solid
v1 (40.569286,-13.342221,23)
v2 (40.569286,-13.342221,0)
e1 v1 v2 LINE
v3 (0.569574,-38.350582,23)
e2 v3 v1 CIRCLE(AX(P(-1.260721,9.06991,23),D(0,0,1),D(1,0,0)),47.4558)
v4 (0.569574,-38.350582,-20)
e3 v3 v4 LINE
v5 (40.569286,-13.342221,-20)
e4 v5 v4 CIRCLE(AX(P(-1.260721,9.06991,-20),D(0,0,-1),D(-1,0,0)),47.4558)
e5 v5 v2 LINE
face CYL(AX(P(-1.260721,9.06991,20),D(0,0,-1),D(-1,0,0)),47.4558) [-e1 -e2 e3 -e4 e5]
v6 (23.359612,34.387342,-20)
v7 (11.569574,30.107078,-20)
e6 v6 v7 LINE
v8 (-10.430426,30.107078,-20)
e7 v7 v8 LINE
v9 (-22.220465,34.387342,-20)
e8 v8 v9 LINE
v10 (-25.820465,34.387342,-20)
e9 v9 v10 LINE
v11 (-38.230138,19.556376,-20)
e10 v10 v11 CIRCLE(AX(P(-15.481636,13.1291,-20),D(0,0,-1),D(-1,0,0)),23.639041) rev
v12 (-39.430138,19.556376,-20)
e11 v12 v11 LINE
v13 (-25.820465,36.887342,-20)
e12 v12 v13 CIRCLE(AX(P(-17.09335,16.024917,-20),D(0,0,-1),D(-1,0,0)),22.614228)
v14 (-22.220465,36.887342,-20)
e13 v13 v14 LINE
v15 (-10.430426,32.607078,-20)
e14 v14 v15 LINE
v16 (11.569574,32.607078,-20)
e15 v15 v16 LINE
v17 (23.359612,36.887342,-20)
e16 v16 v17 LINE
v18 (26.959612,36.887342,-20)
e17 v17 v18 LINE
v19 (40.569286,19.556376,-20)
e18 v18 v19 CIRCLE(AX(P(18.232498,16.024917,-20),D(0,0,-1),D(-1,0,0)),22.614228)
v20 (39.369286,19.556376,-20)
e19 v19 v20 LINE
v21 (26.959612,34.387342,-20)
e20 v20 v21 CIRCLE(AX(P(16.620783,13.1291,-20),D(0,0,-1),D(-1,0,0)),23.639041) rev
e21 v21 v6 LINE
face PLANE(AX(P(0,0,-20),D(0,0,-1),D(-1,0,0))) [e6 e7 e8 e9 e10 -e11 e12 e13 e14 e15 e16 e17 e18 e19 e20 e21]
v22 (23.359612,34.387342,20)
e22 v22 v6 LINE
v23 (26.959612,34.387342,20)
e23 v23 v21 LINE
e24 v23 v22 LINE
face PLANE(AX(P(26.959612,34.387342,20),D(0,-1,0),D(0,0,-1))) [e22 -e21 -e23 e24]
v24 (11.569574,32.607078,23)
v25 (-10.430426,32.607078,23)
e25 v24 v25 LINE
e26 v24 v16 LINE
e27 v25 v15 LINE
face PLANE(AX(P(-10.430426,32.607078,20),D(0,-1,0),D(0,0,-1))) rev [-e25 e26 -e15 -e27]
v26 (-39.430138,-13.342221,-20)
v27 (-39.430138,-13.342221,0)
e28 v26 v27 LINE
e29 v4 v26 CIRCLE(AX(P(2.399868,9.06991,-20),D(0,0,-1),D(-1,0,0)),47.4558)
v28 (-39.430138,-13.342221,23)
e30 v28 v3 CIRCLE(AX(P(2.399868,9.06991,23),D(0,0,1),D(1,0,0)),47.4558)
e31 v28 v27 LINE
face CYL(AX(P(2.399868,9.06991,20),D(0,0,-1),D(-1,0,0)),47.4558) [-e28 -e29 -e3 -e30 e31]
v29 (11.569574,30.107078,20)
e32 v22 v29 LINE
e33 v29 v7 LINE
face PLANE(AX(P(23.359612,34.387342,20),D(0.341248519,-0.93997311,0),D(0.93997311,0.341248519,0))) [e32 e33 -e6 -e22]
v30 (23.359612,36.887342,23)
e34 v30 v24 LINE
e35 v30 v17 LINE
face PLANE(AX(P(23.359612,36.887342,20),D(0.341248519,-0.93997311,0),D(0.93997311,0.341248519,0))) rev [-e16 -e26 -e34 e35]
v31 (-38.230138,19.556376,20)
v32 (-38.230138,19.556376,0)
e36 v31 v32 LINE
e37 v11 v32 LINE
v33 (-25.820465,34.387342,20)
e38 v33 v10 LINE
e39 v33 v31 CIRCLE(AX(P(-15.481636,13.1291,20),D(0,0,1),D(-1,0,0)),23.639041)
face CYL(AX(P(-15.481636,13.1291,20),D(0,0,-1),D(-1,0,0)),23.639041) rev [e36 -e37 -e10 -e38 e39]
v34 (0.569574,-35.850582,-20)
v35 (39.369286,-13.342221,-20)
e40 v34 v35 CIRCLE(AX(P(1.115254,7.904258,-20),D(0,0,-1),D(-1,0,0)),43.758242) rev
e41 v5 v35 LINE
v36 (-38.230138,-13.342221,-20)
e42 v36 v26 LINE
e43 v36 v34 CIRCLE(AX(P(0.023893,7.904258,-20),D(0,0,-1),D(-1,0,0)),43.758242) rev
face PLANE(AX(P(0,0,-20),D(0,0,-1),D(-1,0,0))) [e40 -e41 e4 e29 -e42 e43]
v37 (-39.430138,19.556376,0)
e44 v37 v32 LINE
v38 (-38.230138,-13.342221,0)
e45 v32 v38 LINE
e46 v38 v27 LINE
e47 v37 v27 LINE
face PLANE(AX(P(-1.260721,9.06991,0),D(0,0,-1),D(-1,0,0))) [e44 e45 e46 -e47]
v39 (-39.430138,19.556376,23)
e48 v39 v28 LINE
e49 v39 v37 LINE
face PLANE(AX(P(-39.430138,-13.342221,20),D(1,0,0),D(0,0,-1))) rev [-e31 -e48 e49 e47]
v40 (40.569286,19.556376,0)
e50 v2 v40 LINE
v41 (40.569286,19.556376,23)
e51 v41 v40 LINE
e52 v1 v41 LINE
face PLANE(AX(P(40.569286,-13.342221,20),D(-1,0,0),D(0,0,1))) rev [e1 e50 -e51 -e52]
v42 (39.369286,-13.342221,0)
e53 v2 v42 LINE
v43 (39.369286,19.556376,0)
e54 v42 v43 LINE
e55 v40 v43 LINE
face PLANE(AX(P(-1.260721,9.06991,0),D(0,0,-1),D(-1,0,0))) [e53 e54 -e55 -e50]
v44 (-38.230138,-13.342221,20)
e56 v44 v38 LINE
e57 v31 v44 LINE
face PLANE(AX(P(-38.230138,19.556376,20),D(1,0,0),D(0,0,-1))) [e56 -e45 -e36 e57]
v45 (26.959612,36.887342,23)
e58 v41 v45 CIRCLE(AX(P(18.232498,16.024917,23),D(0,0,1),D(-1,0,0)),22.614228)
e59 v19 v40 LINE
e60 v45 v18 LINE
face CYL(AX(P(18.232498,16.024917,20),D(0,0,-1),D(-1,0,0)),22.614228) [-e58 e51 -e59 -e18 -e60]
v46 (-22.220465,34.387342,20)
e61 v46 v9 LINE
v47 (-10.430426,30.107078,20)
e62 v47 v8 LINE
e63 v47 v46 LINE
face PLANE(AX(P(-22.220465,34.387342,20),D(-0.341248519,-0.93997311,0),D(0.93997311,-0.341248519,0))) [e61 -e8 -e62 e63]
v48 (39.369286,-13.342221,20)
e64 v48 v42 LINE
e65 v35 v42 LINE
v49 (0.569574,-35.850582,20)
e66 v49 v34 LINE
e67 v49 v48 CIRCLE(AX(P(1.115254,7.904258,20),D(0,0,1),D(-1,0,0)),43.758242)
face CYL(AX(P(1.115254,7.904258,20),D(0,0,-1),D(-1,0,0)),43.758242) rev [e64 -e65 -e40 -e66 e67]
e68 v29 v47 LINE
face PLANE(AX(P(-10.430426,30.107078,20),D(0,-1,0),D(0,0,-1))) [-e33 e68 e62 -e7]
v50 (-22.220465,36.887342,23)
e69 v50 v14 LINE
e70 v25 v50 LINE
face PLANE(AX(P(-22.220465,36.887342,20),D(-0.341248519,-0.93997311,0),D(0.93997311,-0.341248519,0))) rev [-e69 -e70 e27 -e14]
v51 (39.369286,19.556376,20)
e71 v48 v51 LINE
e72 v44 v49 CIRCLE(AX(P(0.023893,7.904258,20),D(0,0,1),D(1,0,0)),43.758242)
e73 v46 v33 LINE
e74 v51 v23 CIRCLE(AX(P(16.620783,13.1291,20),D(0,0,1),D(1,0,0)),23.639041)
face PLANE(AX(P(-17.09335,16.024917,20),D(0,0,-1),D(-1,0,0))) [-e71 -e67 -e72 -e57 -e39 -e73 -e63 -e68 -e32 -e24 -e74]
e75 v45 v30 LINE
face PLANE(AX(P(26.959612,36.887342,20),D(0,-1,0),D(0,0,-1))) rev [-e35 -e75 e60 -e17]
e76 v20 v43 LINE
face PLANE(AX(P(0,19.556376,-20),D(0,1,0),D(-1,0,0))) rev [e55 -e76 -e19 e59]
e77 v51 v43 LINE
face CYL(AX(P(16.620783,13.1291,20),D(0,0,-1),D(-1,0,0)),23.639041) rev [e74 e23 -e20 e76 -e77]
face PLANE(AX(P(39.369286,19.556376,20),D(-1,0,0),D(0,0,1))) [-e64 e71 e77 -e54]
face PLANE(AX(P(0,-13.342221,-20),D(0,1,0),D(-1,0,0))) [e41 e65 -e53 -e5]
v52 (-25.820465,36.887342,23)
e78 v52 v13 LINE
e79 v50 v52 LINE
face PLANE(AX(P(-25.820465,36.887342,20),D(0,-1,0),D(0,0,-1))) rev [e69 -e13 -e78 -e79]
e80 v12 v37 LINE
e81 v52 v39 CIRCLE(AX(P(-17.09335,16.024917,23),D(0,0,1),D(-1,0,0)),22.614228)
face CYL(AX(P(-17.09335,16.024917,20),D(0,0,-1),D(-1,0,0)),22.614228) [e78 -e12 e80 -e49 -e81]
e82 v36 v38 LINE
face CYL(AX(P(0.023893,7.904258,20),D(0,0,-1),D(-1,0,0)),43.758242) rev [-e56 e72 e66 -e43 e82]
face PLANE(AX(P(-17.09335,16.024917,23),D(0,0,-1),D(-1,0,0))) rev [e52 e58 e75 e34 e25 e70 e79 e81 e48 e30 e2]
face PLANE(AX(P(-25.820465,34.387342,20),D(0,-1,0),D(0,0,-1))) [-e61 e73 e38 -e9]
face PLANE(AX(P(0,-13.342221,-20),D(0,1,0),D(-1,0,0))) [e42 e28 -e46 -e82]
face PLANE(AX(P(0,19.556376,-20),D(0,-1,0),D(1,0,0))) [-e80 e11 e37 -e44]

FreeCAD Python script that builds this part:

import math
import FreeCAD as App
import Part
import Sketcher

V = App.Vector
Q = App.Units.Quantity

doc = App.newDocument("Part")
params = doc.addObject("Spreadsheet::Sheet", "Params")
for row, (alias, value) in enumerate([
    ("sketch1_width", "22 mm"),
    ("sketch1_width2", "3.6 mm"),
    ("pad1_length", "20 mm"),
    ("sketch2_width", "22 mm"),
    ("sketch2_width2", "1.2 mm"),
    ("sketch2_width3", "3.6 mm"),
    ("pad2_length", "20 mm"),
    ("sketch3_width", "22 mm"),
    ("sketch3_width2", "3.6 mm"),
    ("pad3_length", "3 mm"),
], start=1):
    params.set(f"A{row}", alias)
    params.set(f"B{row}", "=" + value)
    params.setAlias(f"B{row}", alias)

body = doc.addObject("PartDesign::Body", "Body")

sketch1 = body.newObject("Sketcher::SketchObject", "Sketch")
sketch1.AttachmentSupport = (doc.getObject("XY_Plane"), [""])
sketch1.MapMode = "FlatFace"
sketch1.addGeometry([
    Part.LineSegment(V(-39.430138, 19.556376, 0), V(-39.430138, -13.342221, 0)),
    Part.ArcOfCircle(Part.Circle(V(2.399868, 9.06991, 0), V(0, 0, 1), 47.4558), math.radians(-151.818006), math.radians(-92.210355)),
    Part.ArcOfCircle(Part.Circle(V(-1.260721, 9.06991, 0), V(0, 0, 1), 47.4558), math.radians(-87.789645), math.radians(-28.181994)),
    Part.LineSegment(V(40.569286, -13.342221, 0), V(40.569286, 19.556376, 0)),
    Part.ArcOfCircle(Part.Circle(V(18.232498, 16.024917, 0), V(0, 0, 1), 22.614228), math.radians(8.984133), math.radians(67.299595)),
    Part.LineSegment(V(26.959612, 36.887342, 0), V(23.359612, 36.887342, 0)),
    Part.LineSegment(V(23.359612, 36.887342, 0), V(11.569574, 32.607078, 0)),
    Part.LineSegment(V(11.569574, 32.607078, 0), V(-10.430426, 32.607078, 0)),
    Part.LineSegment(V(-10.430426, 32.607078, 0), V(-22.220465, 36.887342, 0)),
    Part.LineSegment(V(-22.220465, 36.887342, 0), V(-25.820465, 36.887342, 0)),
    Part.ArcOfCircle(Part.Circle(V(-17.09335, 16.024917, 0), V(0, 0, 1), 22.614228), math.radians(112.700405), math.radians(171.015867)),
    Part.ArcOfCircle(Part.Circle(V(-15.481636, 13.1291, 0), V(0, 0, 1), 23.639041), math.radians(115.935717), math.radians(164.223091)),
    Part.LineSegment(V(-25.820465, 34.387342, 0), V(-22.220465, 34.387342, 0)),
    Part.LineSegment(V(-22.220465, 34.387342, 0), V(-10.430426, 30.107078, 0)),
    Part.LineSegment(V(-10.430426, 30.107078, 0), V(11.569574, 30.107078, 0)),
    Part.LineSegment(V(11.569574, 30.107078, 0), V(23.359612, 34.387342, 0)),
    Part.LineSegment(V(23.359612, 34.387342, 0), V(26.959612, 34.387342, 0)),
    Part.ArcOfCircle(Part.Circle(V(16.620783, 13.1291, 0), V(0, 0, 1), 23.639041), math.radians(15.776909), math.radians(64.064283)),
    Part.LineSegment(V(39.369286, 19.556376, 0), V(39.369286, -13.342221, 0)),
    Part.ArcOfCircle(Part.Circle(V(1.115254, 7.904258, 0), V(0, 0, 1), 43.758242), math.radians(-90.714517), math.radians(-29.04801)),
    Part.ArcOfCircle(Part.Circle(V(0.023893, 7.904258, 0), V(0, 0, 1), 43.758242), math.radians(-150.95199), math.radians(-89.285483)),
    Part.LineSegment(V(-38.230138, -13.342221, 0), V(-38.230138, 19.556376, 0)),
], False)
sketch1.addConstraint([
    Sketcher.Constraint("Coincident", 0, 2, 1, 1),
    Sketcher.Constraint("Coincident", 1, 2, 2, 1),
    Sketcher.Constraint("Coincident", 2, 2, 3, 1),
    Sketcher.Constraint("Coincident", 3, 2, 4, 1),
    Sketcher.Constraint("Coincident", 4, 2, 5, 1),
    Sketcher.Constraint("Coincident", 5, 2, 6, 1),
    Sketcher.Constraint("Coincident", 6, 2, 7, 1),
    Sketcher.Constraint("Coincident", 7, 2, 8, 1),
    Sketcher.Constraint("Coincident", 8, 2, 9, 1),
    Sketcher.Constraint("Coincident", 9, 2, 10, 1),
    Sketcher.Constraint("Coincident", 10, 2, 0, 1),
    Sketcher.Constraint("Coincident", 11, 1, 12, 1),
    Sketcher.Constraint("Coincident", 12, 2, 13, 1),
    Sketcher.Constraint("Coincident", 13, 2, 14, 1),
    Sketcher.Constraint("Coincident", 14, 2, 15, 1),
    Sketcher.Constraint("Coincident", 15, 2, 16, 1),
    Sketcher.Constraint("Coincident", 16, 2, 17, 2),
    Sketcher.Constraint("Coincident", 17, 1, 18, 1),
    Sketcher.Constraint("Coincident", 18, 2, 19, 2),
    Sketcher.Constraint("Coincident", 19, 1, 20, 2),
    Sketcher.Constraint("Coincident", 20, 1, 21, 1),
    Sketcher.Constraint("Coincident", 21, 2, 11, 2),
    Sketcher.Constraint("Vertical", 0),
    Sketcher.Constraint("Vertical", 3),
    Sketcher.Constraint("Horizontal", 5),
    Sketcher.Constraint("Horizontal", 7),
    Sketcher.Constraint("Horizontal", 9),
    Sketcher.Constraint("Horizontal", 12),
    Sketcher.Constraint("Horizontal", 14),
    Sketcher.Constraint("Horizontal", 16),
    Sketcher.Constraint("Vertical", 18),
    Sketcher.Constraint("Vertical", 21),
    Sketcher.Constraint("Equal", 1, 2),
    Sketcher.Constraint("Equal", 4, 10),
    Sketcher.Constraint("Equal", 11, 17),
    Sketcher.Constraint("Equal", 19, 20),
    Sketcher.Constraint("Parallel", 8, 13),
    Sketcher.Constraint("Parallel", 6, 15),
    Sketcher.Constraint("Horizontal", 1, 3, 2, 3),
    Sketcher.Constraint("Horizontal", 4, 3, 10, 3),
    Sketcher.Constraint("Horizontal", 11, 3, 17, 3),
    Sketcher.Constraint("Horizontal", 19, 3, 20, 3),
    Sketcher.Constraint("Horizontal", 0, 2, 2, 2),
    Sketcher.Constraint("Horizontal", 5, 2, 8, 2),
    Sketcher.Constraint("Horizontal", 3, 2, 10, 2),
    Sketcher.Constraint("Horizontal", 12, 2, 15, 2),
    Sketcher.Constraint("Horizontal", 10, 2, 17, 1),
    Sketcher.Constraint("Horizontal", 2, 2, 18, 2),
    Sketcher.Constraint("Horizontal", 18, 2, 20, 1),
    Sketcher.Constraint("Horizontal", 17, 1, 21, 2),
    Sketcher.Constraint("Vertical", 9, 2, 11, 1),
    Sketcher.Constraint("Vertical", 8, 2, 12, 2),
    Sketcher.Constraint("Vertical", 7, 2, 13, 2),
    Sketcher.Constraint("Vertical", 6, 2, 14, 2),
    Sketcher.Constraint("Vertical", 4, 2, 16, 2),
    Sketcher.Constraint("Equal", 5, 9),
    Sketcher.Constraint("Equal", 6, 8),
    Sketcher.Constraint("DistanceX", 7, 2, 7, 1, Q("22 mm")),
    Sketcher.Constraint("DistanceX", 5, 2, 5, 1, Q("3.6 mm")),
    Sketcher.Constraint("Radius", 1, Q("47.4558 mm")),
    Sketcher.Constraint("DistanceY", 11, 1, 9, 2, Q("2.5 mm")),
    Sketcher.Constraint("DistanceX", 17, 1, 3, 2, Q("1.2 mm")),
    Sketcher.Constraint("DistanceY", 1, 2, 19, 1, Q("2.5 mm")),
    Sketcher.Constraint("Radius", 11, Q("23.639041 mm")),
    Sketcher.Constraint("Radius", 4, Q("22.614228 mm")),
    Sketcher.Constraint("Radius", 19, Q("43.758242 mm")),
    Sketcher.Constraint("DistanceY", -1, 1, 11, 3, Q("13.1291 mm")),
    Sketcher.Constraint("DistanceY", 10, 2, 7, 2, Q("13.050702 mm")),
    Sketcher.Constraint("DistanceY", 0, 2, 0, 1, Q("32.898597 mm")),
    Sketcher.Constraint("DistanceY", -1, 1, 1, 3, Q("9.06991 mm")),
    Sketcher.Constraint("DistanceX", 2, 3, -1, 1, Q("1.260721 mm")),
    Sketcher.Constraint("DistanceX", 10, 3, -1, 1, Q("17.09335 mm")),
    Sketcher.Constraint("DistanceX", 0, 2, -1, 1, Q("39.430138 mm")),
    Sketcher.Constraint("DistanceY", 0, 2, -1, 1, Q("13.342221 mm")),
])
sketch1.setExpression("Constraints[57]", "Params.sketch1_width")
sketch1.setExpression("Constraints[58]", "Params.sketch1_width2")
pad1 = body.newObject("PartDesign::Pad", "Pad")
pad1.Profile = sketch1
pad1.setExpression("Length", "Params.pad1_length")

sketch2 = body.newObject("Sketcher::SketchObject", "Sketch001")
sketch2.AttachmentSupport = (doc.getObject("XY_Plane"), [""])
sketch2.MapMode = "FlatFace"
sketch2.AttachmentOffset = App.Placement(V(0, 0, -20), App.Rotation())
sketch2.addGeometry([
    Part.ArcOfCircle(Part.Circle(V(18.232498, 16.024917, 0), V(0, 0, 1), 22.614228), math.radians(8.984133), math.radians(67.299595)),
    Part.LineSegment(V(40.569286, 19.556376, 0), V(39.369286, 19.556376, 0)),
    Part.ArcOfCircle(Part.Circle(V(16.620783, 13.1291, 0), V(0, 0, 1), 23.639041), math.radians(15.776909), math.radians(64.064283)),
    Part.LineSegment(V(26.959612, 34.387342, 0), V(23.359612, 34.387342, 0)),
    Part.LineSegment(V(23.359612, 34.387342, 0), V(11.569574, 30.107078, 0)),
    Part.LineSegment(V(11.569574, 30.107078, 0), V(-10.430426, 30.107078, 0)),
    Part.LineSegment(V(-10.430426, 30.107078, 0), V(-22.220465, 34.387342, 0)),
    Part.LineSegment(V(-22.220465, 34.387342, 0), V(-25.820465, 34.387342, 0)),
    Part.ArcOfCircle(Part.Circle(V(-15.481636, 13.1291, 0), V(0, 0, 1), 23.639041), math.radians(115.935717), math.radians(164.223091)),
    Part.LineSegment(V(-38.230138, 19.556376, 0), V(-39.430138, 19.556376, 0)),
    Part.ArcOfCircle(Part.Circle(V(-17.09335, 16.024917, 0), V(0, 0, 1), 22.614228), math.radians(112.700405), math.radians(171.015867)),
    Part.LineSegment(V(-25.820465, 36.887342, 0), V(-22.220465, 36.887342, 0)),
    Part.LineSegment(V(-22.220465, 36.887342, 0), V(-10.430426, 32.607078, 0)),
    Part.LineSegment(V(-10.430426, 32.607078, 0), V(11.569574, 32.607078, 0)),
    Part.LineSegment(V(11.569574, 32.607078, 0), V(23.359612, 36.887342, 0)),
    Part.LineSegment(V(23.359612, 36.887342, 0), V(26.959612, 36.887342, 0)),
    Part.ArcOfCircle(Part.Circle(V(1.115254, 7.904258, 0), V(0, 0, 1), 43.758242), math.radians(-90.714517), math.radians(-29.04801)),
    Part.LineSegment(V(39.369286, -13.342221, 0), V(40.569286, -13.342221, 0)),
    Part.ArcOfCircle(Part.Circle(V(-1.260721, 9.06991, 0), V(0, 0, 1), 47.4558), math.radians(-87.789645), math.radians(-28.181994)),
    Part.ArcOfCircle(Part.Circle(V(2.399868, 9.06991, 0), V(0, 0, 1), 47.4558), math.radians(-151.818006), math.radians(-92.210355)),
    Part.LineSegment(V(-39.430138, -13.342221, 0), V(-38.230138, -13.342221, 0)),
    Part.ArcOfCircle(Part.Circle(V(0.023893, 7.904258, 0), V(0, 0, 1), 43.758242), math.radians(-150.95199), math.radians(-89.285483)),
], False)
sketch2.addConstraint([
    Sketcher.Constraint("Coincident", 0, 1, 1, 1),
    Sketcher.Constraint("Coincident", 1, 2, 2, 1),
    Sketcher.Constraint("Coincident", 2, 2, 3, 1),
    Sketcher.Constraint("Coincident", 3, 2, 4, 1),
    Sketcher.Constraint("Coincident", 4, 2, 5, 1),
    Sketcher.Constraint("Coincident", 5, 2, 6, 1),
    Sketcher.Constraint("Coincident", 6, 2, 7, 1),
    Sketcher.Constraint("Coincident", 7, 2, 8, 1),
    Sketcher.Constraint("Coincident", 8, 2, 9, 1),
    Sketcher.Constraint("Coincident", 9, 2, 10, 2),
    Sketcher.Constraint("Coincident", 10, 1, 11, 1),
    Sketcher.Constraint("Coincident", 11, 2, 12, 1),
    Sketcher.Constraint("Coincident", 12, 2, 13, 1),
    Sketcher.Constraint("Coincident", 13, 2, 14, 1),
    Sketcher.Constraint("Coincident", 14, 2, 15, 1),
    Sketcher.Constraint("Coincident", 15, 2, 0, 2),
    Sketcher.Constraint("Coincident", 16, 2, 17, 1),
    Sketcher.Constraint("Coincident", 17, 2, 18, 2),
    Sketcher.Constraint("Coincident", 18, 1, 19, 2),
    Sketcher.Constraint("Coincident", 19, 1, 20, 1),
    Sketcher.Constraint("Coincident", 20, 2, 21, 1),
    Sketcher.Constraint("Coincident", 21, 2, 16, 1),
    Sketcher.Constraint("Horizontal", 1),
    Sketcher.Constraint("Horizontal", 3),
    Sketcher.Constraint("Horizontal", 5),
    Sketcher.Constraint("Horizontal", 7),
    Sketcher.Constraint("Horizontal", 9),
    Sketcher.Constraint("Horizontal", 11),
    Sketcher.Constraint("Horizontal", 13),
    Sketcher.Constraint("Horizontal", 15),
    Sketcher.Constraint("Horizontal", 17),
    Sketcher.Constraint("Horizontal", 20),
    Sketcher.Constraint("Equal", 2, 8),
    Sketcher.Constraint("Equal", 0, 10),
    Sketcher.Constraint("Equal", 18, 19),
    Sketcher.Constraint("Equal", 16, 21),
    Sketcher.Constraint("Parallel", 6, 12),
    Sketcher.Constraint("Parallel", 4, 14),
    Sketcher.Constraint("Horizontal", 2, 3, 8, 3),
    Sketcher.Constraint("Horizontal", 0, 3, 10, 3),
    Sketcher.Constraint("Horizontal", 18, 3, 19, 3),
    Sketcher.Constraint("Horizontal", 16, 3, 21, 3),
    Sketcher.Constraint("Horizontal", 3, 2, 6, 2),
    Sketcher.Constraint("Horizontal", 1, 2, 8, 2),
    Sketcher.Constraint("Horizontal", 11, 2, 14, 2),
    Sketcher.Constraint("Horizontal", 17, 2, 19, 1),
    Sketcher.Constraint("Vertical", 7, 2, 10, 1),
    Sketcher.Constraint("Vertical", 6, 2, 11, 2),
    Sketcher.Constraint("Vertical", 5, 2, 12, 2),
    Sketcher.Constraint("Vertical", 4, 2, 13, 2),
    Sketcher.Constraint("Vertical", 2, 2, 15, 2),
    Sketcher.Constraint("Vertical", 1, 2, 16, 2),
    Sketcher.Constraint("Vertical", 0, 1, 17, 2),
    Sketcher.Constraint("Vertical", 9, 2, 19, 1),
    Sketcher.Constraint("Vertical", 8, 2, 20, 2),
    Sketcher.Constraint("Equal", 3, 7),
    Sketcher.Constraint("Equal", 4, 6),
    Sketcher.Constraint("DistanceX", 5, 2, 5, 1, Q("22 mm")),
    Sketcher.Constraint("DistanceX", 1, 2, 1, 1, Q("1.2 mm")),
    Sketcher.Constraint("DistanceX", 3, 2, 3, 1, Q("3.6 mm")),
    Sketcher.Constraint("Radius", 18, Q("47.4558 mm")),
    Sketcher.Constraint("DistanceY", 7, 2, 10, 1, Q("2.5 mm")),
    Sketcher.Constraint("DistanceY", 18, 1, 21, 2, Q("2.5 mm")),
    Sketcher.Constraint("Radius", 2, Q("23.639041 mm")),
    Sketcher.Constraint("Radius", 0, Q("22.614228 mm")),
    Sketcher.Constraint("Radius", 16, Q("43.758242 mm")),
    Sketcher.Constraint("DistanceY", -1, 1, 2, 3, Q("13.1291 mm")),
    Sketcher.Constraint("DistanceY", 8, 2, 5, 2, Q("10.550702 mm")),
    Sketcher.Constraint("DistanceX", 10, 3, -1, 1, Q("17.09335 mm")),
    Sketcher.Constraint("DistanceX", 18, 3, -1, 1, Q("1.260721 mm")),
    Sketcher.Constraint("DistanceY", -1, 1, 18, 3, Q("9.06991 mm")),
    Sketcher.Constraint("DistanceY", -1, 1, 2, 2, Q("34.387342 mm")),
    Sketcher.Constraint("DistanceX", 8, 2, -1, 1, Q("38.230138 mm")),
    Sketcher.Constraint("DistanceY", 16, 2, -1, 1, Q("13.342221 mm")),
])
sketch2.setExpression("Constraints[57]", "Params.sketch2_width")
sketch2.setExpression("Constraints[58]", "Params.sketch2_width2")
sketch2.setExpression("Constraints[59]", "Params.sketch2_width3")
pad2 = body.newObject("PartDesign::Pad", "Pad001")
pad2.Profile = sketch2
pad2.setExpression("Length", "Params.pad2_length")

sketch3 = body.newObject("Sketcher::SketchObject", "Sketch002")
sketch3.AttachmentSupport = (doc.getObject("XY_Plane"), [""])
sketch3.MapMode = "FlatFace"
sketch3.AttachmentOffset = App.Placement(V(0, 0, 20), App.Rotation())
sketch3.addGeometry([
    Part.LineSegment(V(-22.220465, 36.887342, 0), V(-25.820465, 36.887342, 0)),
    Part.ArcOfCircle(Part.Circle(V(-17.09335, 16.024917, 0), V(0, 0, 1), 22.614228), math.radians(112.700405), math.radians(171.015867)),
    Part.LineSegment(V(-39.430138, 19.556376, 0), V(-39.430138, -13.342221, 0)),
    Part.ArcOfCircle(Part.Circle(V(2.399868, 9.06991, 0), V(0, 0, 1), 47.4558), math.radians(-151.818006), math.radians(-92.210355)),
    Part.ArcOfCircle(Part.Circle(V(-1.260721, 9.06991, 0), V(0, 0, 1), 47.4558), math.radians(-87.789645), math.radians(-28.181994)),
    Part.LineSegment(V(40.569286, -13.342221, 0), V(40.569286, 19.556376, 0)),
    Part.ArcOfCircle(Part.Circle(V(18.232498, 16.024917, 0), V(0, 0, 1), 22.614228), math.radians(8.984133), math.radians(67.299595)),
    Part.LineSegment(V(26.959612, 36.887342, 0), V(23.359612, 36.887342, 0)),
    Part.LineSegment(V(23.359612, 36.887342, 0), V(11.569574, 32.607078, 0)),
    Part.LineSegment(V(11.569574, 32.607078, 0), V(-10.430426, 32.607078, 0)),
    Part.LineSegment(V(-10.430426, 32.607078, 0), V(-22.220465, 36.887342, 0)),
], False)
sketch3.addConstraint([
    Sketcher.Constraint("Coincident", 0, 2, 1, 1),
    Sketcher.Constraint("Coincident", 1, 2, 2, 1),
    Sketcher.Constraint("Coincident", 2, 2, 3, 1),
    Sketcher.Constraint("Coincident", 3, 2, 4, 1),
    Sketcher.Constraint("Coincident", 4, 2, 5, 1),
    Sketcher.Constraint("Coincident", 5, 2, 6, 1),
    Sketcher.Constraint("Coincident", 6, 2, 7, 1),
    Sketcher.Constraint("Coincident", 7, 2, 8, 1),
    Sketcher.Constraint("Coincident", 8, 2, 9, 1),
    Sketcher.Constraint("Coincident", 9, 2, 10, 1),
    Sketcher.Constraint("Coincident", 10, 2, 0, 1),
    Sketcher.Constraint("Horizontal", 0),
    Sketcher.Constraint("Vertical", 2),
    Sketcher.Constraint("Vertical", 5),
    Sketcher.Constraint("Horizontal", 7),
    Sketcher.Constraint("Horizontal", 9),
    Sketcher.Constraint("Equal", 3, 4),
    Sketcher.Constraint("Equal", 1, 6),
    Sketcher.Constraint("Horizontal", 3, 3, 4, 3),
    Sketcher.Constraint("Horizontal", 1, 3, 6, 3),
    Sketcher.Constraint("Horizontal", 2, 2, 4, 2),
    Sketcher.Constraint("Horizontal", 1, 2, 5, 2),
    Sketcher.Constraint("Horizontal", 0, 2, 6, 2),
    Sketcher.Constraint("Equal", 0, 7),
    Sketcher.Constraint("Equal", 8, 10),
    Sketcher.Constraint("DistanceX", 9, 2, 9, 1, Q("22 mm")),
    Sketcher.Constraint("DistanceX", 0, 2, 0, 1, Q("3.6 mm")),
    Sketcher.Constraint("Radius", 3, Q("47.4558 mm")),
    Sketcher.Constraint("Radius", 1, Q("22.614228 mm")),
    Sketcher.Constraint("DistanceY", 3, 2, 1, 3, Q("54.375499 mm")),
    Sketcher.Constraint("DistanceY", 2, 2, 2, 1, Q("32.898597 mm")),
    Sketcher.Constraint("DistanceX", 1, 3, -1, 1, Q("17.09335 mm")),
    Sketcher.Constraint("DistanceY", -1, 1, 3, 3, Q("9.06991 mm")),
    Sketcher.Constraint("DistanceX", 4, 3, -1, 1, Q("1.260721 mm")),
    Sketcher.Constraint("DistanceY", -1, 1, 0, 2, Q("36.887342 mm")),
    Sketcher.Constraint("DistanceX", 1, 2, -1, 1, Q("39.430138 mm")),
    Sketcher.Constraint("DistanceY", 6, 3, 8, 2, Q("16.582161 mm")),
])
sketch3.setExpression("Constraints[25]", "Params.sketch3_width")
sketch3.setExpression("Constraints[26]", "Params.sketch3_width2")
pad3 = body.newObject("PartDesign::Pad", "Pad002")
pad3.Profile = sketch3
pad3.setExpression("Length", "Params.pad3_length")

doc.recompute()
